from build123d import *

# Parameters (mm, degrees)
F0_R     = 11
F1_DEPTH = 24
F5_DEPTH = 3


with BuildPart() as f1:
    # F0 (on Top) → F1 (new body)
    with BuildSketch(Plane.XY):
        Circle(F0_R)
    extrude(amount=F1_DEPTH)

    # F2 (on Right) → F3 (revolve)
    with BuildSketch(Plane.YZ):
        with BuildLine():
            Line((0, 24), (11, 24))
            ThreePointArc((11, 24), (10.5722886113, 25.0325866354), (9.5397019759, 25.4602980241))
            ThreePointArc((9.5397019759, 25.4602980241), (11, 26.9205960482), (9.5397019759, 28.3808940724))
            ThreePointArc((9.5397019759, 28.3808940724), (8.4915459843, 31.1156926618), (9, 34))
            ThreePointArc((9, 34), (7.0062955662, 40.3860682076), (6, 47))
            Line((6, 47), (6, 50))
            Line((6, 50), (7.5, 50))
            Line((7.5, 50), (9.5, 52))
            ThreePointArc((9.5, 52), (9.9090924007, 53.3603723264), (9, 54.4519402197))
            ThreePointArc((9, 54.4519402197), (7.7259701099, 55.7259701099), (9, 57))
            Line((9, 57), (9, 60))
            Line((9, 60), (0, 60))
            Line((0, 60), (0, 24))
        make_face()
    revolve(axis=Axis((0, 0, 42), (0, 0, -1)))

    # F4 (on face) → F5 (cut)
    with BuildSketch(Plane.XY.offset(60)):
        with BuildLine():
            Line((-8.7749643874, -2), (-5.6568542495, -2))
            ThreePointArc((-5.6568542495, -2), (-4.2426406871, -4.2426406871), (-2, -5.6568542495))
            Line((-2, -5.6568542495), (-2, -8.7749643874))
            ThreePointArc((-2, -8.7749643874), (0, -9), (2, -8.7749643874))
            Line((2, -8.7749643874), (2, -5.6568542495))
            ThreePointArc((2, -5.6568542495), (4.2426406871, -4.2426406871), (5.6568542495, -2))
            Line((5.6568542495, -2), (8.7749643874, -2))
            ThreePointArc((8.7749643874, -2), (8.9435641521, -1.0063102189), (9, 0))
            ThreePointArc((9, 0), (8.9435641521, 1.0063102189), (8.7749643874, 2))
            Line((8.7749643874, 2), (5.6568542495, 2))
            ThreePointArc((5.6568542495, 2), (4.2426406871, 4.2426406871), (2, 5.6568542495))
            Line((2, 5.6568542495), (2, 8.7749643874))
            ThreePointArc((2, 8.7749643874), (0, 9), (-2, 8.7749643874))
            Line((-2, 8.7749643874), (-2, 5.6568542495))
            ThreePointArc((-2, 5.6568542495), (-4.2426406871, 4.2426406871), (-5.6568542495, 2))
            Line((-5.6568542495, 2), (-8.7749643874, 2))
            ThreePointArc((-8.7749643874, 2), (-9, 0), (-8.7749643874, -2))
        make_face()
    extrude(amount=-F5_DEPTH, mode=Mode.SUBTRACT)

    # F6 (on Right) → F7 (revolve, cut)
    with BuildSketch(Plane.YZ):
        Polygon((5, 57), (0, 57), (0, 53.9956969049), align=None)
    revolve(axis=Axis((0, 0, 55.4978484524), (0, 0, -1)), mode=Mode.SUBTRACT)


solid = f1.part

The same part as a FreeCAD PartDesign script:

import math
import FreeCAD as App
import Part
import Sketcher

V = App.Vector
Q = App.Units.Quantity


def add_polygon(sketch, points):
    """Adds a closed chain of lines whose ends are joined by coincident constraints."""
    first, n = sketch.GeometryCount, len(points)
    for a, b in zip(points, points[1:] + points[:1]):
        sketch.addGeometry(Part.LineSegment(App.Vector(*a, 0), App.Vector(*b, 0)), False)
    for i in range(n):
        sketch.addConstraint(Sketcher.Constraint("Coincident", first + i, 2, first + (i + 1) % n, 1))

doc = App.newDocument("Part")
params = doc.addObject("Spreadsheet::Sheet", "Params")
for row, (alias, value) in enumerate([
    ("sketch1_diameter", "22 mm"),
    ("pad1_length", "24 mm"),
    ("sketch2_radius", "1.5 mm"),
    ("sketch2_width", "11 mm"),
    ("sketch2_width2", "9 mm"),
    ("sketch2_height", "3 mm"),
    ("sketch2_height2", "36 mm"),
    ("revolution_angle", "360 deg"),
    ("sketch3_radius", "6 mm"),
    ("sketch3_radius2", "9 mm"),
    ("pocket1_length", "3 mm"),
    ("sketch4_width", "5 mm"),
    ("groove_angle", "360 deg"),
], start=1):
    params.set(f"A{row}", alias)
    params.set(f"B{row}", "=" + value)
    params.setAlias(f"B{row}", alias)

body = doc.addObject("PartDesign::Body", "Body")

sketch1 = doc.addObject("Sketcher::SketchObject", "Sketch")
body.addObject(sketch1)
sketch1.AttachmentSupport = (doc.XY_Plane, [""])
sketch1.MapMode = "FlatFace"
sketch1.addGeometry(Part.Circle(V(0, 0, 0), V(0, 0, 1), 11), False)
sketch1.addConstraint([
    Sketcher.Constraint("Coincident", 0, 3, -1, 1),
    Sketcher.Constraint("Diameter", 0, Q("22 mm")),
])
sketch1.setExpression("Constraints[1]", "Params.sketch1_diameter")
pad1 = doc.addObject("PartDesign::Pad", "Pad")
body.addObject(pad1)
pad1.Profile = sketch1
pad1.setExpression("Length", "Params.pad1_length")

sketch2 = doc.addObject("Sketcher::SketchObject", "Sketch001")
body.addObject(sketch2)
sketch2.AttachmentSupport = (doc.YZ_Plane, [""])
sketch2.MapMode = "FlatFace"
sketch2.addGeometry([
    Part.LineSegment(V(0, 24, 0), V(11, 24, 0)),
    Part.ArcOfCircle(Part.Circle(V(9.5, 24, 0), V(0, 0, 1), 1.5), math.radians(0), math.radians(90)),
    Part.ArcOfCircle(Part.Circle(V(9.5, 26.9, 0), V(0, 0, 1), 1.5), math.radians(-90), math.radians(90)),
    Part.ArcOfCircle(Part.Circle(V(14, 31.6, 0), V(0, 0, 1), 5.5), math.radians(155), math.radians(216)),
    Part.ArcOfCircle(Part.Circle(V(50, 50.3, 0), V(0, 0, 1), 44.2), math.radians(-175.69), math.radians(-158.32)),
    Part.LineSegment(V(6, 47, 0), V(6, 50, 0)),
    Part.LineSegment(V(6, 50, 0), V(7.5, 50, 0)),
    Part.LineSegment(V(7.5, 50, 0), V(9.5, 52, 0)),
    Part.ArcOfCircle(Part.Circle(V(8.4, 53.1, 0), V(0, 0, 1), 1.5), math.radians(-45), math.radians(68)),
    Part.ArcOfCircle(Part.Circle(V(9, 55.7, 0), V(0, 0, 1), 1.3), math.radians(90), math.radians(270)),
    Part.LineSegment(V(9, 57, 0), V(9, 60, 0)),
    Part.LineSegment(V(9, 60, 0), V(0, 60, 0)),
    Part.LineSegment(V(0, 60, 0), V(0, 24, 0)),
], False)
sketch2.addConstraint([
    Sketcher.Constraint("Coincident", 0, 2, 1, 1),
    Sketcher.Constraint("Tangent", 1, 2, 2, 1),
    Sketcher.Constraint("Coincident", 2, 2, 3, 2),
    Sketcher.Constraint("Coincident", 3, 1, 4, 2),
    Sketcher.Constraint("Coincident", 4, 1, 5, 1),
    Sketcher.Constraint("Coincident", 5, 2, 6, 1),
    Sketcher.Constraint("Coincident", 6, 2, 7, 1),
    Sketcher.Constraint("Tangent", 7, 2, 8, 1),
    Sketcher.Constraint("Coincident", 8, 2, 9, 2),
    Sketcher.Constraint("Coincident", 9, 1, 10, 1),
    Sketcher.Constraint("Coincident", 10, 2, 11, 1),
    Sketcher.Constraint("Coincident", 11, 2, 12, 1),
    Sketcher.Constraint("Coincident", 12, 2, 0, 1),
    Sketcher.Constraint("Horizontal", 0),
    Sketcher.Constraint("Vertical", 5),
    Sketcher.Constraint("Horizontal", 6),
    Sketcher.Constraint("Vertical", 10),
    Sketcher.Constraint("Horizontal", 11),
    Sketcher.Constraint("Vertical", 12),
    Sketcher.Constraint("Equal", 1, 2),
    Sketcher.Constraint("PointOnObject", 11, 2, -2),
    Sketcher.Constraint("Horizontal", 1, 3, 0, 2),
    Sketcher.Constraint("Vertical", 1, 3, 2, 3),
    Sketcher.Constraint("Vertical", 1, 2, 2, 2),
    Sketcher.Constraint("Vertical", 9, 3, 3, 1),
    Sketcher.Constraint("Vertical", 3, 1, 8, 2),
    Sketcher.Constraint("Vertical", 8, 2, 9, 1),
    Sketcher.Constraint("Equal", 5, 10),
    Sketcher.Constraint("Radius", 8, Q("1.5 mm")),
    Sketcher.Constraint("DistanceX", 0, 1, 0, 2, Q("11 mm")),
    Sketcher.Constraint("DistanceX", 11, 2, 11, 1, Q("9 mm")),
    Sketcher.Constraint("DistanceY", 5, 1, 5, 2, Q("3 mm")),
    Sketcher.Constraint("DistanceY", 12, 2, 12, 1, Q("36 mm")),
    Sketcher.Constraint("Angle", 7, Q("45 deg")),
    Sketcher.Constraint("DistanceX", 6, 1, 6, 2, Q("1.5 mm")),
    Sketcher.Constraint("DistanceY", -1, 1, 1, 3, Q("24 mm")),
    Sketcher.Constraint("DistanceY", -1, 1, 3, 1, Q("34 mm")),
    Sketcher.Constraint("DistanceX", -1, 1, 4, 1, Q("6 mm")),
    Sketcher.Constraint("DistanceY", -1, 1, 4, 1, Q("47 mm")),
    Sketcher.Constraint("DistanceY", -1, 1, 7, 2, Q("52 mm")),
    Sketcher.Constraint("Radius", 1, Q("1.460298 mm")),
    Sketcher.Constraint("Radius", 3, Q("5.485292 mm")),
    Sketcher.Constraint("Radius", 4, Q("44.166667 mm")),
])
sketch2.setExpression("Constraints[28]", "Params.sketch2_radius")
sketch2.setExpression("Constraints[29]", "Params.sketch2_width")
sketch2.setExpression("Constraints[30]", "Params.sketch2_width2")
sketch2.setExpression("Constraints[31]", "Params.sketch2_height")
sketch2.setExpression("Constraints[32]", "Params.sketch2_height2")
revolution = doc.addObject("PartDesign::Revolution", "Revolution")
body.addObject(revolution)
revolution.Profile = sketch2
revolution.ReferenceAxis = (sketch2, ["V_Axis"])
revolution.setExpression("Angle", "Params.revolution_angle")

sketch3 = doc.addObject("Sketcher::SketchObject", "Sketch002")
body.addObject(sketch3)
sketch3.AttachmentSupport = (doc.XY_Plane, [""])
sketch3.MapMode = "FlatFace"
sketch3.AttachmentOffset = App.Placement(V(0, 0, 60), App.Rotation())
sketch3.addGeometry([
    Part.LineSegment(V(-8.8, -2, 0), V(-5.7, -2, 0)),
    Part.ArcOfCircle(Part.Circle(V(0, 0, 0), V(0, 0, 1), 6), math.radians(-161), math.radians(-109)),
    Part.LineSegment(V(-2, -5.7, 0), V(-2, -8.8, 0)),
    Part.ArcOfCircle(Part.Circle(V(0, 0, 0), V(0, 0, 1), 9), math.radians(-103), math.radians(-77)),
    Part.LineSegment(V(2, -8.8, 0), V(2, -5.7, 0)),
    Part.ArcOfCircle(Part.Circle(V(0, 0, 0), V(0, 0, 1), 6), math.radians(-71), math.radians(-19)),
    Part.LineSegment(V(5.7, -2, 0), V(8.8, -2, 0)),
    Part.ArcOfCircle(Part.Circle(V(0, 0, 0), V(0, 0, 1), 9), math.radians(-12.84), math.radians(0)),
    Part.ArcOfCircle(Part.Circle(V(0, 0, 0), V(0, 0, 1), 9), math.radians(0), math.radians(12.84)),
    Part.LineSegment(V(8.8, 2, 0), V(5.7, 2, 0)),
    Part.ArcOfCircle(Part.Circle(V(0, 0, 0), V(0, 0, 1), 6), math.radians(19), math.radians(71)),
    Part.LineSegment(V(2, 5.7, 0), V(2, 8.8, 0)),
    Part.ArcOfCircle(Part.Circle(V(0, 0, 0), V(0, 0, 1), 9), math.radians(77), math.radians(103)),
    Part.LineSegment(V(-2, 8.8, 0), V(-2, 5.7, 0)),
    Part.ArcOfCircle(Part.Circle(V(0, 0, 0), V(0, 0, 1), 6), math.radians(109), math.radians(161)),
    Part.LineSegment(V(-5.7, 2, 0), V(-8.8, 2, 0)),
    Part.ArcOfCircle(Part.Circle(V(0, 0, 0), V(0, 0, 1), 9), math.radians(167), math.radians(193)),
], False)
sketch3.addConstraint([
    Sketcher.Constraint("Coincident", 0, 2, 1, 1),
    Sketcher.Constraint("Coincident", 1, 2, 2, 1),
    Sketcher.Constraint("Coincident", 2, 2, 3, 1),
    Sketcher.Constraint("Coincident", 3, 2, 4, 1),
    Sketcher.Constraint("Coincident", 4, 2, 5, 1),
    Sketcher.Constraint("Coincident", 5, 2, 6, 1),
    Sketcher.Constraint("Coincident", 6, 2, 7, 1),
    Sketcher.Constraint("Tangent", 7, 2, 8, 1),
    Sketcher.Constraint("Coincident", 8, 2, 9, 1),
    Sketcher.Constraint("Coincident", 9, 2, 10, 1),
    Sketcher.Constraint("Coincident", 10, 2, 11, 1),
    Sketcher.Constraint("Coincident", 11, 2, 12, 1),
    Sketcher.Constraint("Coincident", 12, 2, 13, 1),
    Sketcher.Constraint("Coincident", 13, 2, 14, 1),
    Sketcher.Constraint("Coincident", 14, 2, 15, 1),
    Sketcher.Constraint("Coincident", 15, 2, 16, 1),
    Sketcher.Constraint("Coincident", 16, 2, 0, 1),
    Sketcher.Constraint("Horizontal", 0),
    Sketcher.Constraint("Vertical", 2),
    Sketcher.Constraint("Vertical", 4),
    Sketcher.Constraint("Horizontal", 6),
    Sketcher.Constraint("Horizontal", 9),
    Sketcher.Constraint("Vertical", 11),
    Sketcher.Constraint("Vertical", 13),
    Sketcher.Constraint("Horizontal", 15),
    Sketcher.Constraint("Coincident", 1, 3, -1, 1),
    Sketcher.Constraint("Coincident", 3, 3, -1, 1),
    Sketcher.Constraint("Coincident", 5, 3, -1, 1),
    Sketcher.Constraint("Coincident", 7, 3, -1, 1),
    Sketcher.Constraint("Coincident", 10, 3, -1, 1),
    Sketcher.Constraint("Coincident", 12, 3, -1, 1),
    Sketcher.Constraint("Coincident", 14, 3, -1, 1),
    Sketcher.Constraint("Coincident", 16, 3, -1, 1),
    Sketcher.Constraint("Equal", 1, 5),
    Sketcher.Constraint("Equal", 3, 7),
    Sketcher.Constraint("Equal", 7, 8),
    Sketcher.Constraint("Equal", 5, 10),
    Sketcher.Constraint("Equal", 8, 12),
    Sketcher.Constraint("Equal", 10, 14),
    Sketcher.Constraint("Equal", 12, 16),
    Sketcher.Constraint("PointOnObject", 7, 2, -1),
    Sketcher.Constraint("Horizontal", 2, 2, 3, 2),
    Sketcher.Constraint("Horizontal", 0, 2, 5, 2),
    Sketcher.Constraint("Horizontal", 11, 2, 12, 2),
    Sketcher.Constraint("Horizontal", 9, 2, 14, 2),
    Sketcher.Constraint("Vertical", 6, 2, 8, 2),
    Sketcher.Constraint("Vertical", 4, 2, 10, 2),
    Sketcher.Constraint("Equal", 15, 2),
    Sketcher.Constraint("Radius", 1, Q("6 mm")),
    Sketcher.Constraint("Radius", 3, Q("9 mm")),
    Sketcher.Constraint("DistanceY", 0, 2, -1, 1, Q("2 mm")),
])
sketch3.setExpression("Constraints[48]", "Params.sketch3_radius")
sketch3.setExpression("Constraints[49]", "Params.sketch3_radius2")
pocket1 = doc.addObject("PartDesign::Pocket", "Pocket")
body.addObject(pocket1)
pocket1.Profile = sketch3
pocket1.setExpression("Length", "Params.pocket1_length")

sketch4 = doc.addObject("Sketcher::SketchObject", "Sketch003")
body.addObject(sketch4)
sketch4.AttachmentSupport = (doc.YZ_Plane, [""])
sketch4.MapMode = "FlatFace"
add_polygon(sketch4, [(5, 57), (0, 57), (0, 54)])
sketch4.addConstraint([
    Sketcher.Constraint("Horizontal", 0),
    Sketcher.Constraint("Vertical", 1),
    Sketcher.Constraint("PointOnObject", 0, 2, -2),
    Sketcher.Constraint("DistanceX", 0, 2, 0, 1, Q("5 mm")),
    Sketcher.Constraint("Angle", 2, Q("31 deg")),
    Sketcher.Constraint("DistanceY", -1, 1, 0, 2, Q("57 mm")),
])
sketch4.setExpression("Constraints[6]", "Params.sketch4_width")
groove = doc.addObject("PartDesign::Groove", "Groove")
body.addObject(groove)
groove.Profile = sketch4
groove.ReferenceAxis = (sketch4, ["V_Axis"])
groove.setExpression("Angle", "Params.groove_angle")

doc.recompute()
